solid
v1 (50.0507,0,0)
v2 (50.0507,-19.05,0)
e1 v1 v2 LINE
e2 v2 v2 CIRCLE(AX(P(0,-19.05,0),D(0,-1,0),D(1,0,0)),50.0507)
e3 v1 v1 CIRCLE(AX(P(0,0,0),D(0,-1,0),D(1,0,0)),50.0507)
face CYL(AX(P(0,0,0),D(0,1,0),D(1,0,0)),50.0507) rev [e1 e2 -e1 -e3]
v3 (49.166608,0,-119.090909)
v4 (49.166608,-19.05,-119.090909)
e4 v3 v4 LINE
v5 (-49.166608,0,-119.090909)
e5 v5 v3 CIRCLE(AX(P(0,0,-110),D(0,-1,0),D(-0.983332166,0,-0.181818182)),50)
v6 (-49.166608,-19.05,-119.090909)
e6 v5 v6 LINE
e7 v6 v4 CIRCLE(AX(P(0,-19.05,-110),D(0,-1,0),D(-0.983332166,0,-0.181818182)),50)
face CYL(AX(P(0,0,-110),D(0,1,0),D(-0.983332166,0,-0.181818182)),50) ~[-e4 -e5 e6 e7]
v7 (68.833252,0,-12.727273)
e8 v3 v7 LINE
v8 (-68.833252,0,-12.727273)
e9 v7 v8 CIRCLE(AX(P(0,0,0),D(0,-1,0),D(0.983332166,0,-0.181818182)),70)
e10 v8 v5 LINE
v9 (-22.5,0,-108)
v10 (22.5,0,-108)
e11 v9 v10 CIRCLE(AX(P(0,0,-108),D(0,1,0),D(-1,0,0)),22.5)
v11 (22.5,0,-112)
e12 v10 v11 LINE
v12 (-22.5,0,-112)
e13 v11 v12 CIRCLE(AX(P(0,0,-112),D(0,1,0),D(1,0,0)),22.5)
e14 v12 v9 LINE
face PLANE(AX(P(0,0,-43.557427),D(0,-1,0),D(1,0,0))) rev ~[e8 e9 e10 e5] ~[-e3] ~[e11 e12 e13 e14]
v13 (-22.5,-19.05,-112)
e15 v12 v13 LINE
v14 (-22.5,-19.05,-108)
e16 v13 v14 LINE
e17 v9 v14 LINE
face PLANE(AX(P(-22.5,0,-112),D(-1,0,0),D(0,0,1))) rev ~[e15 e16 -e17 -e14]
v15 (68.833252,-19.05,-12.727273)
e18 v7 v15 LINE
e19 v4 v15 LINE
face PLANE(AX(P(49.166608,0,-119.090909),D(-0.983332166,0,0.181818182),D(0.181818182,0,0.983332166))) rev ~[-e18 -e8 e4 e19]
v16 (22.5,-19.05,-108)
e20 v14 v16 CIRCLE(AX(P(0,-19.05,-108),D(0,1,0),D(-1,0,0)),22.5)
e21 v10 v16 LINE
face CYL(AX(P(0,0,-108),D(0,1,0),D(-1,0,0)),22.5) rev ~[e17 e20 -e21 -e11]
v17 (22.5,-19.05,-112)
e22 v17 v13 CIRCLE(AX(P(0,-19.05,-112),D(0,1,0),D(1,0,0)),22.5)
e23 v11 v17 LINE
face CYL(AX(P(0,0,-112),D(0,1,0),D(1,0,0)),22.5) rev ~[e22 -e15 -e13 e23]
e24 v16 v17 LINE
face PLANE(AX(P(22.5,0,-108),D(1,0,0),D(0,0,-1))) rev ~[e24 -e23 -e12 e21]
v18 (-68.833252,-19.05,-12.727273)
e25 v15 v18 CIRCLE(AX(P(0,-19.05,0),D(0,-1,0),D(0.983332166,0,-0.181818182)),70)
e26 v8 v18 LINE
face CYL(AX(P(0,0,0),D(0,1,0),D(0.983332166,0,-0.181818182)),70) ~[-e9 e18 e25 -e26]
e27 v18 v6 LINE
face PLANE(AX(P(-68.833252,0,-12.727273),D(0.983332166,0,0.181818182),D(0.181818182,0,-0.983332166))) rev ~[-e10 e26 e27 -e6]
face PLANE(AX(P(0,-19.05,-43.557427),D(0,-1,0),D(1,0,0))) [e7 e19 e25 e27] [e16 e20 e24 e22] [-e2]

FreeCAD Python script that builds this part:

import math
import FreeCAD as App
import Part
import Sketcher

V = App.Vector
Q = App.Units.Quantity

doc = App.newDocument("Part")
body = doc.addObject("PartDesign::Body", "Body")

sketch1 = doc.addObject("Sketcher::SketchObject", "Sketch")
body.addObject(sketch1)
sketch1.AttachmentSupport = (doc.XZ_Plane, [""])
sketch1.MapMode = "FlatFace"
sketch1.addGeometry([
    Part.LineSegment(V(49.2, -119.1, 0), V(68.8, -12.7, 0)),
    Part.ArcOfCircle(Part.Circle(V(0, 0, 0), V(0, 0, 1), 70), math.radians(-10), math.radians(190)),
    Part.LineSegment(V(-68.8, -12.7, 0), V(-49.2, -119.1, 0)),
    Part.ArcOfCircle(Part.Circle(V(0, -110, 0), V(0, 0, 1), 50), math.radians(-170), math.radians(-10)),
    Part.ArcOfCircle(Part.Circle(V(0, -112, 0), V(0, 0, 1), 22.5), math.radians(180), math.radians(360)),
    Part.LineSegment(V(-22.5, -112, 0), V(-22.5, -108, 0)),
    Part.ArcOfCircle(Part.Circle(V(0, -108, 0), V(0, 0, 1), 22.5), math.radians(0), math.radians(180)),
    Part.LineSegment(V(22.5, -108, 0), V(22.5, -112, 0)),
    Part.Circle(V(0, 0, 0), V(0, 0, 1), 50.1),
], False)
sketch1.addConstraint([
    Sketcher.Constraint("Tangent", 0, 2, 1, 1),
    Sketcher.Constraint("Tangent", 1, 2, 2, 1),
    Sketcher.Constraint("Tangent", 2, 2, 3, 1),
    Sketcher.Constraint("Tangent", 3, 2, 0, 1),
    Sketcher.Constraint("Tangent", 4, 1, 5, 1),
    Sketcher.Constraint("Tangent", 5, 2, 6, 2),
    Sketcher.Constraint("Tangent", 6, 1, 7, 1),
    Sketcher.Constraint("Tangent", 7, 2, 4, 2),
    Sketcher.Constraint("Vertical", 5),
    Sketcher.Constraint("Vertical", 7),
    Sketcher.Constraint("Coincident", 1, 3, -1, 1),
    Sketcher.Constraint("Coincident", 8, 3, -1, 1),
    Sketcher.Constraint("PointOnObject", 3, 3, -2),
    Sketcher.Constraint("PointOnObject", 4, 3, -2),
    Sketcher.Constraint("Radius", 1, Q("70 mm")),
    Sketcher.Constraint("Radius", 3, Q("50 mm")),
    Sketcher.Constraint("Radius", 4, Q("22.5 mm")),
    Sketcher.Constraint("DistanceY", 5, 1, 5, 2, Q("4 mm")),
    Sketcher.Constraint("DistanceY", 3, 3, -1, 1, Q("110 mm")),
    Sketcher.Constraint("DistanceY", 4, 3, -1, 1, Q("112 mm")),
    Sketcher.Constraint("Diameter", 8, Q("100.1014 mm")),
])
pad1 = doc.addObject("PartDesign::Pad", "Pad")
body.addObject(pad1)
pad1.Profile = sketch1
pad1.Length = 19.05

doc.recompute()
